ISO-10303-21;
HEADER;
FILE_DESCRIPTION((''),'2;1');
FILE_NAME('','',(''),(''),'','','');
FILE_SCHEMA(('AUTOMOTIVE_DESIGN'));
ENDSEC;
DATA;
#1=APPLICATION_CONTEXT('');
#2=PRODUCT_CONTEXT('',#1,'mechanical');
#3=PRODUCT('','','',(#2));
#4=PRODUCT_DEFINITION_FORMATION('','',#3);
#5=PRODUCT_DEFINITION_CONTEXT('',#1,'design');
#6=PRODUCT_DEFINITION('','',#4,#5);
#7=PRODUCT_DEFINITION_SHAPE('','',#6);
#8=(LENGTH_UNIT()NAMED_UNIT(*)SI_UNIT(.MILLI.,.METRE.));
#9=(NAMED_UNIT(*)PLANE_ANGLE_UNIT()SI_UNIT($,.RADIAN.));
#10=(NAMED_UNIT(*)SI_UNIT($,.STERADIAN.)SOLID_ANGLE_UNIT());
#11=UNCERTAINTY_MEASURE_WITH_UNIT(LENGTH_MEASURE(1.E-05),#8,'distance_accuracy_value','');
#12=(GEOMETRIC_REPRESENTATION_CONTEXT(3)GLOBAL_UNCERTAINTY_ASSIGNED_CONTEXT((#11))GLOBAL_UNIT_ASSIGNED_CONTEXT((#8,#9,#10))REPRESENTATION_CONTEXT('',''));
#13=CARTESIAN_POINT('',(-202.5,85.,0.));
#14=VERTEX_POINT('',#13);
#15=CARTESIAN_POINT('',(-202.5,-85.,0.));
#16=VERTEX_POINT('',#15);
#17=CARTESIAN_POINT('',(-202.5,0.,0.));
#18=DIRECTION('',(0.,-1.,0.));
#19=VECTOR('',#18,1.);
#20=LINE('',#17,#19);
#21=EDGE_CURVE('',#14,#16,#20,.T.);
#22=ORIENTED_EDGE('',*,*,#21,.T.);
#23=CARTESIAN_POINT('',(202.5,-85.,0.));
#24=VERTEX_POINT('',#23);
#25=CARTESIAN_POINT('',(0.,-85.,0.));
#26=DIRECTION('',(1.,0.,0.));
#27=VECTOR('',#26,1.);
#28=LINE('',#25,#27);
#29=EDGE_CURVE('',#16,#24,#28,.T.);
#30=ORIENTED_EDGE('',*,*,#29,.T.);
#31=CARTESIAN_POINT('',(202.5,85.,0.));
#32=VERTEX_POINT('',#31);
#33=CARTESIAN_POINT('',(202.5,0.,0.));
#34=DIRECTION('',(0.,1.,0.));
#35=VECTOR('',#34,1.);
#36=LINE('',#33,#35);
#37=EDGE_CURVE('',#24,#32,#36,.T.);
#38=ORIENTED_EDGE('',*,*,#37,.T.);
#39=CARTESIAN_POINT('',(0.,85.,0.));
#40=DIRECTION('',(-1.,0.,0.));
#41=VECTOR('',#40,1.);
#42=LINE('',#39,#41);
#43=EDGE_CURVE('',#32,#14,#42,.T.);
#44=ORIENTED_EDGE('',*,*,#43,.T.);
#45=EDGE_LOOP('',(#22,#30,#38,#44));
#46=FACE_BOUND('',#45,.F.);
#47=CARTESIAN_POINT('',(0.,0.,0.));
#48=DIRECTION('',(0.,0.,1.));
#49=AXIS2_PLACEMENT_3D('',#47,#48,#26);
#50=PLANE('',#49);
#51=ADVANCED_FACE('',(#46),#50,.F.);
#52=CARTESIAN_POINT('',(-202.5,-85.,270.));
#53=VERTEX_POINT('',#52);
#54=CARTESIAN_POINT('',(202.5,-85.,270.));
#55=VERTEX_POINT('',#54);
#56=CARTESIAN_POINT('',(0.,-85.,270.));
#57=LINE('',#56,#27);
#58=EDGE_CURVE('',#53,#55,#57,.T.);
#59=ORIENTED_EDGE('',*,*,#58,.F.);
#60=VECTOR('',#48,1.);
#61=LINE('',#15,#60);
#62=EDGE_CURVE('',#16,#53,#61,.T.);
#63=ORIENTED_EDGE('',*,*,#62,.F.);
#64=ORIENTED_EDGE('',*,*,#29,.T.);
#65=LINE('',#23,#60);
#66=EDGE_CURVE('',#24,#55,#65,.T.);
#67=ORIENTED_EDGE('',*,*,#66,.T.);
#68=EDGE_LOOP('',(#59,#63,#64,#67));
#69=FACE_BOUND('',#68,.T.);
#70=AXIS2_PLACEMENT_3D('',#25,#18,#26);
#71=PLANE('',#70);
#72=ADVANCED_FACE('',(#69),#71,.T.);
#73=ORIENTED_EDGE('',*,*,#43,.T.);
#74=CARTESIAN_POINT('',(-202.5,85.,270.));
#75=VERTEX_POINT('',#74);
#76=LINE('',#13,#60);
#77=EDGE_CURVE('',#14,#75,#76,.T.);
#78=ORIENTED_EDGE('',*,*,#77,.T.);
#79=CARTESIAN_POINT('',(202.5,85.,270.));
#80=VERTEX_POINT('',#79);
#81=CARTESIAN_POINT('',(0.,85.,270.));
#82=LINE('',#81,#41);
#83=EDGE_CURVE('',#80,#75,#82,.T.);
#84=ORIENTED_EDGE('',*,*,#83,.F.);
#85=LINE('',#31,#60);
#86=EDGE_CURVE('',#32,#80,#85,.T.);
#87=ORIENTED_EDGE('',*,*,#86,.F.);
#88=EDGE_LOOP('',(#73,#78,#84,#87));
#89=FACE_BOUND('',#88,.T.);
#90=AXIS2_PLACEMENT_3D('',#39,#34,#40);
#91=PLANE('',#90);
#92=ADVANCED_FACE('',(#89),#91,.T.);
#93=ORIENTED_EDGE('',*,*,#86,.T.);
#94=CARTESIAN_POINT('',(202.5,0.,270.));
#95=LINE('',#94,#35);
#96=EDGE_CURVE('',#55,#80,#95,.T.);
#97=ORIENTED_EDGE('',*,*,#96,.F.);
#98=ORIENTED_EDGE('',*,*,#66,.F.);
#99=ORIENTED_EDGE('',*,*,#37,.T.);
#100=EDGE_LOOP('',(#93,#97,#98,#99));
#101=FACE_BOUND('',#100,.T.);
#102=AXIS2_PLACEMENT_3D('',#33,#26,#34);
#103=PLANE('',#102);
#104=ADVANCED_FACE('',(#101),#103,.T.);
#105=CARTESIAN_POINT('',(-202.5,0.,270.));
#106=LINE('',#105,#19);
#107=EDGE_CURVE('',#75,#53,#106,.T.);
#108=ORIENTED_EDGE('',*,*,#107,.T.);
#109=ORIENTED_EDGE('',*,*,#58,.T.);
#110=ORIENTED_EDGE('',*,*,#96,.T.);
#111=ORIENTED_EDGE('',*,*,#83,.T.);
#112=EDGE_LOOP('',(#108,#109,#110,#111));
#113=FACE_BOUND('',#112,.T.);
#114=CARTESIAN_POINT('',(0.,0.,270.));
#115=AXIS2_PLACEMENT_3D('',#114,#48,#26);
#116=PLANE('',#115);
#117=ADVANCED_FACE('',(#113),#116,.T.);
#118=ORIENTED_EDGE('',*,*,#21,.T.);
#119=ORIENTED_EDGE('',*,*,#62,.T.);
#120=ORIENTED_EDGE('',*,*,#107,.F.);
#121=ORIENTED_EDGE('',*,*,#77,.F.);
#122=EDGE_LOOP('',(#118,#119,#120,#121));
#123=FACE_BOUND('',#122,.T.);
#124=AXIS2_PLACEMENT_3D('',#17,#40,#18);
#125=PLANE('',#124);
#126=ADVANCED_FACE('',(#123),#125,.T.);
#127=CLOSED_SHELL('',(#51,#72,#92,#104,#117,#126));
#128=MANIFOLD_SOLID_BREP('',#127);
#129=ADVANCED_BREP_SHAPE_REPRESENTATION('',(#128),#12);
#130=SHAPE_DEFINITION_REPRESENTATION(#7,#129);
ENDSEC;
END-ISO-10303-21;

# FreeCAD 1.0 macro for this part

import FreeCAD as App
import Part
import Sketcher

V = App.Vector
Q = App.Units.Quantity


def add_polygon(sketch, points):
    """Adds a closed chain of lines whose ends are joined by coincident constraints."""
    first, n = sketch.GeometryCount, len(points)
    for a, b in zip(points, points[1:] + points[:1]):
        sketch.addGeometry(Part.LineSegment(App.Vector(*a, 0), App.Vector(*b, 0)), False)
    for i in range(n):
        sketch.addConstraint(Sketcher.Constraint("Coincident", first + i, 2, first + (i + 1) % n, 1))

doc = App.newDocument("Part")
body = doc.addObject("PartDesign::Body", "Body")

# Sketch on XY plane
sketch1 = doc.addObject("Sketcher::SketchObject", "Sketch")
body.addObject(sketch1)
sketch1.AttachmentSupport = (doc.XY_Plane, [""])
sketch1.MapMode = "FlatFace"
add_polygon(sketch1, [(-202, 85), (-202, -85), (202, -85), (202, 85)])  # lines 0-3
sketch1.addConstraint(Sketcher.Constraint("Vertical", 0))
sketch1.addConstraint(Sketcher.Constraint("Horizontal", 1))
sketch1.addConstraint(Sketcher.Constraint("Vertical", 2))
sketch1.addConstraint(Sketcher.Constraint("Horizontal", 3))
sketch1.addConstraint(Sketcher.Constraint("Symmetric", 0, 2, 2, 2, -1, 1))
sketch1.addConstraint(Sketcher.Constraint("DistanceX", 1, 1, 1, 2, Q("405 mm")))
sketch1.addConstraint(Sketcher.Constraint("DistanceY", 0, 2, 0, 1, Q("170 mm")))

# Sketch on XZ plane
sketch2 = doc.addObject("Sketcher::SketchObject", "Sketch001")
body.addObject(sketch2)
sketch2.AttachmentSupport = (doc.XZ_Plane, [""])
sketch2.MapMode = "FlatFace"
sketch2.addGeometry(Part.LineSegment(V(0, 0, 0), V(0, 270, 0)), False)
sketch2.addConstraint(Sketcher.Constraint("Vertical", 0))
sketch2.addConstraint(Sketcher.Constraint("Coincident", 0, 1, -1, 1))
sketch2.addConstraint(Sketcher.Constraint("DistanceY", 0, 1, 0, 2, Q("270 mm")))
doc.recompute()

additivepipe = doc.addObject("PartDesign::AdditivePipe", "AdditivePipe")
body.addObject(additivepipe)
additivepipe.Profile = sketch1
additivepipe.Spine = (sketch2, ["Edge1"])

doc.recompute()
